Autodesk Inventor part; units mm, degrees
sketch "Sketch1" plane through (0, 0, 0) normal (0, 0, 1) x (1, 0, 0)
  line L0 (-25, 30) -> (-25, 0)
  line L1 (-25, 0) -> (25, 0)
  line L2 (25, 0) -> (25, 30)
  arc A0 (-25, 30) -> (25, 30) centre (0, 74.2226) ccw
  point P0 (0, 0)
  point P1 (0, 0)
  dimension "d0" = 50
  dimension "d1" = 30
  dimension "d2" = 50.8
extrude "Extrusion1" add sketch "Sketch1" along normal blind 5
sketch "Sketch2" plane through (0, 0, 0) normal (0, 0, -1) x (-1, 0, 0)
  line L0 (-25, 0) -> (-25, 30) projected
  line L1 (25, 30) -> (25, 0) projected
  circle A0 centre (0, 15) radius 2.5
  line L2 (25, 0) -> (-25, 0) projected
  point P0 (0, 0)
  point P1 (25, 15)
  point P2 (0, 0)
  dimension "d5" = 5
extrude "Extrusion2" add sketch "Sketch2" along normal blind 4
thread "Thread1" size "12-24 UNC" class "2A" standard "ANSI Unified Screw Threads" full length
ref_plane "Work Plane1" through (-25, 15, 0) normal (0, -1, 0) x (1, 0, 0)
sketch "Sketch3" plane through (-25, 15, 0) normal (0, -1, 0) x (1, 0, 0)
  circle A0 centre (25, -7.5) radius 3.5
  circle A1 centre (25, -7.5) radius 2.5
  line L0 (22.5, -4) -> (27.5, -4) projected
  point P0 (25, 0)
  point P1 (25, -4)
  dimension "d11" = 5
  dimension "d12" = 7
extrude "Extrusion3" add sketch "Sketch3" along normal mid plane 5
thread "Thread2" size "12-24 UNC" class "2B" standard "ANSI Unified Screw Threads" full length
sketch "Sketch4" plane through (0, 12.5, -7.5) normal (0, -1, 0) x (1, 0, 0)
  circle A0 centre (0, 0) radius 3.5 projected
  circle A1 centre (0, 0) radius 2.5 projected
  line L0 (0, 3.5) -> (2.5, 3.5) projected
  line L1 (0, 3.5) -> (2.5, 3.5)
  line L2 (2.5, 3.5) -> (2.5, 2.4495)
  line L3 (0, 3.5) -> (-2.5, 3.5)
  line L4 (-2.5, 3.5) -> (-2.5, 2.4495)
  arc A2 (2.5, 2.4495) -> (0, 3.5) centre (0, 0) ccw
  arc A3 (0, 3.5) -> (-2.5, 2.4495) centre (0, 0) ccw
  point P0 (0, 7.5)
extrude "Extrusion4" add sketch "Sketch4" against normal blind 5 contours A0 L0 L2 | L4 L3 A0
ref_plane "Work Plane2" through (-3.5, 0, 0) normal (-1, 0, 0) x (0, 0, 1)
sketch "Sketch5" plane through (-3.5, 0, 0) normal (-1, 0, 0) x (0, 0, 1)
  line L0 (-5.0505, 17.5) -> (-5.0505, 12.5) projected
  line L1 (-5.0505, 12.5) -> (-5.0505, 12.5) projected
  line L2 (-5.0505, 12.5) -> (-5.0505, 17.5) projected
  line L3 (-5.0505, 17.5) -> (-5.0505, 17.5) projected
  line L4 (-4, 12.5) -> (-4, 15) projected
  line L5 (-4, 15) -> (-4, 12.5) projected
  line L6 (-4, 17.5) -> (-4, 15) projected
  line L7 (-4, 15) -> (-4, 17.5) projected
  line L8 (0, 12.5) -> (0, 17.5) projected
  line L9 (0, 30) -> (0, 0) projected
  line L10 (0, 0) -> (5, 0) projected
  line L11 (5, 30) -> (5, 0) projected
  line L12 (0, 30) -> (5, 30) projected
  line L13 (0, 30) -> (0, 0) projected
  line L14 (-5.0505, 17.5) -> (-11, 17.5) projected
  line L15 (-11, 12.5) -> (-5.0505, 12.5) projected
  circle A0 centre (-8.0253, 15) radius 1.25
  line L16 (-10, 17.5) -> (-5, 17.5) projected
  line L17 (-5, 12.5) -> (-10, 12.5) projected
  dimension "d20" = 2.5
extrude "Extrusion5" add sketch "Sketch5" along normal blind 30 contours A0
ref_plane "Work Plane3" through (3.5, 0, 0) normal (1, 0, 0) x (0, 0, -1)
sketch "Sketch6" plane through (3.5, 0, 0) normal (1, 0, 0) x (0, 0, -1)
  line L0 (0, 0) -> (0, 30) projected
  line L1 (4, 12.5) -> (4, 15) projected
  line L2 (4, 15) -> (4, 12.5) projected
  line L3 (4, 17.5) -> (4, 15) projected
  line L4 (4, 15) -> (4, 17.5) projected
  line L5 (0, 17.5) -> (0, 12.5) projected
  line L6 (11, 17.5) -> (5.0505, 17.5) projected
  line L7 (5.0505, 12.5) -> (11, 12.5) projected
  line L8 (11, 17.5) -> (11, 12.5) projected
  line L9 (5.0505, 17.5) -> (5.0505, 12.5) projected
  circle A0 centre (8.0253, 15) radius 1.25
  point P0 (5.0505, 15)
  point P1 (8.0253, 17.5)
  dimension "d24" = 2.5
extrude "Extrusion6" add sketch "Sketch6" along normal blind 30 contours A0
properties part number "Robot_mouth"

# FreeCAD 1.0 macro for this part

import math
import FreeCAD as App
import Part
import Sketcher

V = App.Vector

doc = App.newDocument("Part")
body = doc.addObject("PartDesign::Body", "Body")
body.AllowCompound = True

# Sketch on XY plane
sketch1 = body.newObject("Sketcher::SketchObject", "Sketch")
sketch1.AttachmentSupport = (doc.getObject("XY_Plane"), [""])
sketch1.MapMode = "FlatFace"
sketch1.addGeometry(Part.ArcOfCircle(Part.Circle(V(0, 74, 0), V(0, 0, 1), 51), math.radians(-119), math.radians(-61)), False)
sketch1.addGeometry(Part.LineSegment(V(-25, 30, 0), V(-25, 0, 0)), False)
sketch1.addGeometry(Part.LineSegment(V(-25, 0, 0), V(25, 0, 0)), False)
sketch1.addGeometry(Part.LineSegment(V(25, 0, 0), V(25, 30, 0)), False)
sketch1.addConstraint(Sketcher.Constraint("Coincident", 0, 1, 1, 1))
sketch1.addConstraint(Sketcher.Constraint("Coincident", 1, 2, 2, 1))
sketch1.addConstraint(Sketcher.Constraint("Coincident", 2, 2, 3, 1))
sketch1.addConstraint(Sketcher.Constraint("Coincident", 3, 2, 0, 2))
sketch1.addConstraint(Sketcher.Constraint("Vertical", 1))
sketch1.addConstraint(Sketcher.Constraint("Horizontal", 2))
sketch1.addConstraint(Sketcher.Constraint("Vertical", 3))
sketch1.addConstraint(Sketcher.Constraint("Symmetric", 1, 2, 2, 2, -1, 1))
sketch1.addConstraint(Sketcher.Constraint("PointOnObject", 0, 3, -2))
sketch1.addConstraint(Sketcher.Constraint("Radius", 0, 50.8))
sketch1.addConstraint(Sketcher.Constraint("DistanceX", 2, 1, 2, 2, 50.0))
sketch1.addConstraint(Sketcher.Constraint("DistanceY", 1, 2, 1, 1, 30.0))
pad1 = body.newObject("PartDesign::Pad", "Pad")
pad1.Profile = sketch1
pad1.Length = 5

# Sketch on XY plane
sketch2 = body.newObject("Sketcher::SketchObject", "Sketch001")
sketch2.AttachmentSupport = (doc.getObject("XY_Plane"), [""])
sketch2.MapMode = "FlatFace"
sketch2.addGeometry(Part.Circle(V(0, 15, 0), V(0, 0, 1), 2.5), False)
sketch2.addConstraint(Sketcher.Constraint("PointOnObject", 0, 3, -2))
sketch2.addConstraint(Sketcher.Constraint("Diameter", 0, 5.0))
sketch2.addConstraint(Sketcher.Constraint("DistanceY", -1, 1, 0, 3, 15.0))
pad2 = body.newObject("PartDesign::Pad", "Pad001")
pad2.Profile = sketch2
pad2.Length = 4
pad2.Reversed = True

# Sketch on XZ plane
sketch3 = body.newObject("Sketcher::SketchObject", "Sketch002")
sketch3.AttachmentSupport = (doc.getObject("XZ_Plane"), [""])
sketch3.MapMode = "FlatFace"
sketch3.AttachmentOffset = App.Placement(V(0, 0, -15), App.Rotation())
sketch3.addGeometry(Part.Circle(V(0, -7.5, 0), V(0, 0, 1), 3.5), False)
sketch3.addGeometry(Part.Circle(V(0, -7.5, 0), V(0, 0, 1), 2.5), False)
sketch3.addConstraint(Sketcher.Constraint("Coincident", 1, 3, 0, 3))
sketch3.addConstraint(Sketcher.Constraint("PointOnObject", 0, 3, -2))
sketch3.addConstraint(Sketcher.Constraint("Diameter", 0, 7.0))
sketch3.addConstraint(Sketcher.Constraint("Diameter", 1, 5.0))
sketch3.addConstraint(Sketcher.Constraint("DistanceY", 0, 3, -1, 1, 7.5))
pad3 = body.newObject("PartDesign::Pad", "Pad002")
pad3.Profile = sketch3
pad3.Length = 5
pad3.Midplane = True

# Sketch on XZ plane
sketch4 = body.newObject("Sketcher::SketchObject", "Sketch003")
sketch4.AttachmentSupport = (doc.getObject("XZ_Plane"), [""])
sketch4.MapMode = "FlatFace"
sketch4.AttachmentOffset = App.Placement(V(0, 0, -12.5), App.Rotation())
sketch4.addGeometry(Part.ArcOfCircle(Part.Circle(V(0, -7.5, 0), V(0, 0, 1), 3.5), math.radians(44), math.radians(90)), False)
sketch4.addGeometry(Part.LineSegment(V(2.5, -5.1, 0), V(2.5, -4, 0)), False)
sketch4.addGeometry(Part.LineSegment(V(2.5, -4, 0), V(0, -4, 0)), False)
sketch4.addGeometry(Part.LineSegment(V(-2.5, -4, 0), V(-2.5, -5.1, 0)), False)
sketch4.addGeometry(Part.ArcOfCircle(Part.Circle(V(0, -7.5, 0), V(0, 0, 1), 3.5), math.radians(90), math.radians(136)), False)
sketch4.addGeometry(Part.LineSegment(V(0, -4, 0), V(-2.5, -4, 0)), False)
sketch4.addConstraint(Sketcher.Constraint("Coincident", 0, 1, 1, 1))
sketch4.addConstraint(Sketcher.Constraint("Coincident", 1, 2, 2, 1))
sketch4.addConstraint(Sketcher.Constraint("Tangent", 2, 2, 0, 2))
sketch4.addConstraint(Sketcher.Constraint("Coincident", 3, 2, 4, 2))
sketch4.addConstraint(Sketcher.Constraint("Tangent", 4, 1, 5, 1))
sketch4.addConstraint(Sketcher.Constraint("Coincident", 5, 2, 3, 1))
sketch4.addConstraint(Sketcher.Constraint("Vertical", 1))
sketch4.addConstraint(Sketcher.Constraint("Horizontal", 2))
sketch4.addConstraint(Sketcher.Constraint("Vertical", 3))
sketch4.addConstraint(Sketcher.Constraint("Horizontal", 5))
sketch4.addConstraint(Sketcher.Constraint("Coincident", 4, 3, 0, 3))
sketch4.addConstraint(Sketcher.Constraint("Equal", 0, 4))
sketch4.addConstraint(Sketcher.Constraint("Symmetric", 0, 1, 3, 2, -2))
sketch4.addConstraint(Sketcher.Constraint("Radius", 0, 3.5))
sketch4.addConstraint(Sketcher.Constraint("DistanceX", 2, 2, 2, 1, 2.5))
sketch4.addConstraint(Sketcher.Constraint("DistanceY", 1, 2, -1, 1, 4.0))
pad4 = body.newObject("PartDesign::Pad", "Pad003")
pad4.Profile = sketch4
pad4.Length = 5
pad4.Reversed = True

# Sketch on YZ plane
sketch5 = body.newObject("Sketcher::SketchObject", "Sketch004")
sketch5.AttachmentSupport = (doc.getObject("YZ_Plane"), [""])
sketch5.MapMode = "FlatFace"
sketch5.AttachmentOffset = App.Placement(V(0, 0, -3.5), App.Rotation())
sketch5.addGeometry(Part.Circle(V(15, -8, 0), V(0, 0, 1), 1.2), False)
sketch5.addConstraint(Sketcher.Constraint("Diameter", 0, 2.5))
sketch5.addConstraint(Sketcher.Constraint("DistanceX", -1, 1, 0, 3, 15.0))
sketch5.addConstraint(Sketcher.Constraint("DistanceY", 0, 3, -1, 1, 8.0253))
pad5 = body.newObject("PartDesign::Pad", "Pad004")
pad5.Profile = sketch5
pad5.Length = 30
pad5.Reversed = True

# Sketch on YZ plane
sketch6 = body.newObject("Sketcher::SketchObject", "Sketch005")
sketch6.AttachmentSupport = (doc.getObject("YZ_Plane"), [""])
sketch6.MapMode = "FlatFace"
sketch6.AttachmentOffset = App.Placement(V(0, 0, 3.5), App.Rotation())
sketch6.addGeometry(Part.Circle(V(15, -8, 0), V(0, 0, 1), 1.2), False)
sketch6.addConstraint(Sketcher.Constraint("Diameter", 0, 2.5))
sketch6.addConstraint(Sketcher.Constraint("DistanceX", -1, 1, 0, 3, 15.0))
sketch6.addConstraint(Sketcher.Constraint("DistanceY", 0, 3, -1, 1, 8.0253))
pad6 = body.newObject("PartDesign::Pad", "Pad005")
pad6.Profile = sketch6
pad6.Length = 30

doc.recompute()
